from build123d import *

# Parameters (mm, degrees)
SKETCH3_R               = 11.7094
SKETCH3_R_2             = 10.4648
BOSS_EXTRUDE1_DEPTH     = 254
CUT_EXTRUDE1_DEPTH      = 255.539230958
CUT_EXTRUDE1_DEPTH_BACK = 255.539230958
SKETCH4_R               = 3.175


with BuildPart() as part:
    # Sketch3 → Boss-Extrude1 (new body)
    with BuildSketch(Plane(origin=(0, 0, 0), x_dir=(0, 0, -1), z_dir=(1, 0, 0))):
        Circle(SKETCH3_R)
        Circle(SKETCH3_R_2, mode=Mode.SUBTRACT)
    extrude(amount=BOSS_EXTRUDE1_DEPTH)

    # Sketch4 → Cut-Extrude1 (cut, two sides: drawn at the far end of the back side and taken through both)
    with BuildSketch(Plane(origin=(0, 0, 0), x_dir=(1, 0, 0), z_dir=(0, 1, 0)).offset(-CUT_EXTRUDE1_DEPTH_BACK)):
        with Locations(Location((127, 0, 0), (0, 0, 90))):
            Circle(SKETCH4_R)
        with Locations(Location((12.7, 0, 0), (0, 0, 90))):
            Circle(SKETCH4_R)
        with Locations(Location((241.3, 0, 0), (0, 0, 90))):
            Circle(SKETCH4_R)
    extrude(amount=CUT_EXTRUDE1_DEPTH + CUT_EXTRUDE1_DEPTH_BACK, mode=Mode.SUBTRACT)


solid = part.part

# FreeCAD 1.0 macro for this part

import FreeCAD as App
import Part
import Sketcher

V = App.Vector
Q = App.Units.Quantity

doc = App.newDocument("Part")
params = doc.addObject("Spreadsheet::Sheet", "Params")
for row, (alias, value) in enumerate([
    ("sketch1_diameter", "0.922 in"),
    ("sketch1_diameter2", "0.824 in"),
    ("pad1_length", "10 in"),
    ("sketch2_diameter", "0.25 in"),
], start=1):
    params.set(f"A{row}", alias)
    params.set(f"B{row}", "=" + value)
    params.setAlias(f"B{row}", alias)

body = doc.addObject("PartDesign::Body", "Body")

# Sketch on YZ plane
sketch1 = body.newObject("Sketcher::SketchObject", "Sketch")
sketch1.AttachmentSupport = (doc.getObject("YZ_Plane"), [""])
sketch1.MapMode = "FlatFace"
sketch1.addGeometry([
    Part.Circle(V(0, 0, 0), V(0, 0, 1), 11.7094),
    Part.Circle(V(0, 0, 0), V(0, 0, 1), 10.4648),
], False)
sketch1.addConstraint([
    Sketcher.Constraint("Coincident", 0, 3, -1, 1),
    Sketcher.Constraint("Coincident", 1, 3, -1, 1),
    Sketcher.Constraint("Diameter", 0, Q("0.922 in")),
    Sketcher.Constraint("Diameter", 1, Q("0.824 in")),
])
sketch1.setExpression("Constraints[2]", "Params.sketch1_diameter")
sketch1.setExpression("Constraints[3]", "Params.sketch1_diameter2")
pad1 = body.newObject("PartDesign::Pad", "Pad")
pad1.Profile = sketch1
pad1.setExpression("Length", "Params.pad1_length")

# Sketch on XZ plane
sketch2 = body.newObject("Sketcher::SketchObject", "Sketch001")
sketch2.AttachmentSupport = (doc.getObject("XZ_Plane"), [""])
sketch2.MapMode = "FlatFace"
sketch2.addGeometry([
    Part.Circle(V(127, 0, 0), V(0, 0, 1), 3.175),
    Part.Circle(V(12.7, 0, 0), V(0, 0, 1), 3.175),
    Part.Circle(V(241.3, 0, 0), V(0, 0, 1), 3.175),
], False)
sketch2.addConstraint([
    Sketcher.Constraint("Equal", 0, 1),
    Sketcher.Constraint("Equal", 1, 2),
    Sketcher.Constraint("PointOnObject", 0, 3, -1),
    Sketcher.Constraint("PointOnObject", 1, 3, -1),
    Sketcher.Constraint("PointOnObject", 2, 3, -1),
    Sketcher.Constraint("Diameter", 0, Q("0.25 in")),
    Sketcher.Constraint("DistanceX", -1, 1, 0, 3, Q("5 in")),
    Sketcher.Constraint("DistanceX", 1, 3, 2, 3, Q("9 in")),
    Sketcher.Constraint("DistanceX", -1, 1, 1, 3, Q("0.5 in")),
])
sketch2.setExpression("Constraints[5]", "Params.sketch2_diameter")
pocket1 = body.newObject("PartDesign::Pocket", "Pocket")
pocket1.Profile = sketch2
pocket1.Type = "ThroughAll"
pocket1.Midplane = True

doc.recompute()
